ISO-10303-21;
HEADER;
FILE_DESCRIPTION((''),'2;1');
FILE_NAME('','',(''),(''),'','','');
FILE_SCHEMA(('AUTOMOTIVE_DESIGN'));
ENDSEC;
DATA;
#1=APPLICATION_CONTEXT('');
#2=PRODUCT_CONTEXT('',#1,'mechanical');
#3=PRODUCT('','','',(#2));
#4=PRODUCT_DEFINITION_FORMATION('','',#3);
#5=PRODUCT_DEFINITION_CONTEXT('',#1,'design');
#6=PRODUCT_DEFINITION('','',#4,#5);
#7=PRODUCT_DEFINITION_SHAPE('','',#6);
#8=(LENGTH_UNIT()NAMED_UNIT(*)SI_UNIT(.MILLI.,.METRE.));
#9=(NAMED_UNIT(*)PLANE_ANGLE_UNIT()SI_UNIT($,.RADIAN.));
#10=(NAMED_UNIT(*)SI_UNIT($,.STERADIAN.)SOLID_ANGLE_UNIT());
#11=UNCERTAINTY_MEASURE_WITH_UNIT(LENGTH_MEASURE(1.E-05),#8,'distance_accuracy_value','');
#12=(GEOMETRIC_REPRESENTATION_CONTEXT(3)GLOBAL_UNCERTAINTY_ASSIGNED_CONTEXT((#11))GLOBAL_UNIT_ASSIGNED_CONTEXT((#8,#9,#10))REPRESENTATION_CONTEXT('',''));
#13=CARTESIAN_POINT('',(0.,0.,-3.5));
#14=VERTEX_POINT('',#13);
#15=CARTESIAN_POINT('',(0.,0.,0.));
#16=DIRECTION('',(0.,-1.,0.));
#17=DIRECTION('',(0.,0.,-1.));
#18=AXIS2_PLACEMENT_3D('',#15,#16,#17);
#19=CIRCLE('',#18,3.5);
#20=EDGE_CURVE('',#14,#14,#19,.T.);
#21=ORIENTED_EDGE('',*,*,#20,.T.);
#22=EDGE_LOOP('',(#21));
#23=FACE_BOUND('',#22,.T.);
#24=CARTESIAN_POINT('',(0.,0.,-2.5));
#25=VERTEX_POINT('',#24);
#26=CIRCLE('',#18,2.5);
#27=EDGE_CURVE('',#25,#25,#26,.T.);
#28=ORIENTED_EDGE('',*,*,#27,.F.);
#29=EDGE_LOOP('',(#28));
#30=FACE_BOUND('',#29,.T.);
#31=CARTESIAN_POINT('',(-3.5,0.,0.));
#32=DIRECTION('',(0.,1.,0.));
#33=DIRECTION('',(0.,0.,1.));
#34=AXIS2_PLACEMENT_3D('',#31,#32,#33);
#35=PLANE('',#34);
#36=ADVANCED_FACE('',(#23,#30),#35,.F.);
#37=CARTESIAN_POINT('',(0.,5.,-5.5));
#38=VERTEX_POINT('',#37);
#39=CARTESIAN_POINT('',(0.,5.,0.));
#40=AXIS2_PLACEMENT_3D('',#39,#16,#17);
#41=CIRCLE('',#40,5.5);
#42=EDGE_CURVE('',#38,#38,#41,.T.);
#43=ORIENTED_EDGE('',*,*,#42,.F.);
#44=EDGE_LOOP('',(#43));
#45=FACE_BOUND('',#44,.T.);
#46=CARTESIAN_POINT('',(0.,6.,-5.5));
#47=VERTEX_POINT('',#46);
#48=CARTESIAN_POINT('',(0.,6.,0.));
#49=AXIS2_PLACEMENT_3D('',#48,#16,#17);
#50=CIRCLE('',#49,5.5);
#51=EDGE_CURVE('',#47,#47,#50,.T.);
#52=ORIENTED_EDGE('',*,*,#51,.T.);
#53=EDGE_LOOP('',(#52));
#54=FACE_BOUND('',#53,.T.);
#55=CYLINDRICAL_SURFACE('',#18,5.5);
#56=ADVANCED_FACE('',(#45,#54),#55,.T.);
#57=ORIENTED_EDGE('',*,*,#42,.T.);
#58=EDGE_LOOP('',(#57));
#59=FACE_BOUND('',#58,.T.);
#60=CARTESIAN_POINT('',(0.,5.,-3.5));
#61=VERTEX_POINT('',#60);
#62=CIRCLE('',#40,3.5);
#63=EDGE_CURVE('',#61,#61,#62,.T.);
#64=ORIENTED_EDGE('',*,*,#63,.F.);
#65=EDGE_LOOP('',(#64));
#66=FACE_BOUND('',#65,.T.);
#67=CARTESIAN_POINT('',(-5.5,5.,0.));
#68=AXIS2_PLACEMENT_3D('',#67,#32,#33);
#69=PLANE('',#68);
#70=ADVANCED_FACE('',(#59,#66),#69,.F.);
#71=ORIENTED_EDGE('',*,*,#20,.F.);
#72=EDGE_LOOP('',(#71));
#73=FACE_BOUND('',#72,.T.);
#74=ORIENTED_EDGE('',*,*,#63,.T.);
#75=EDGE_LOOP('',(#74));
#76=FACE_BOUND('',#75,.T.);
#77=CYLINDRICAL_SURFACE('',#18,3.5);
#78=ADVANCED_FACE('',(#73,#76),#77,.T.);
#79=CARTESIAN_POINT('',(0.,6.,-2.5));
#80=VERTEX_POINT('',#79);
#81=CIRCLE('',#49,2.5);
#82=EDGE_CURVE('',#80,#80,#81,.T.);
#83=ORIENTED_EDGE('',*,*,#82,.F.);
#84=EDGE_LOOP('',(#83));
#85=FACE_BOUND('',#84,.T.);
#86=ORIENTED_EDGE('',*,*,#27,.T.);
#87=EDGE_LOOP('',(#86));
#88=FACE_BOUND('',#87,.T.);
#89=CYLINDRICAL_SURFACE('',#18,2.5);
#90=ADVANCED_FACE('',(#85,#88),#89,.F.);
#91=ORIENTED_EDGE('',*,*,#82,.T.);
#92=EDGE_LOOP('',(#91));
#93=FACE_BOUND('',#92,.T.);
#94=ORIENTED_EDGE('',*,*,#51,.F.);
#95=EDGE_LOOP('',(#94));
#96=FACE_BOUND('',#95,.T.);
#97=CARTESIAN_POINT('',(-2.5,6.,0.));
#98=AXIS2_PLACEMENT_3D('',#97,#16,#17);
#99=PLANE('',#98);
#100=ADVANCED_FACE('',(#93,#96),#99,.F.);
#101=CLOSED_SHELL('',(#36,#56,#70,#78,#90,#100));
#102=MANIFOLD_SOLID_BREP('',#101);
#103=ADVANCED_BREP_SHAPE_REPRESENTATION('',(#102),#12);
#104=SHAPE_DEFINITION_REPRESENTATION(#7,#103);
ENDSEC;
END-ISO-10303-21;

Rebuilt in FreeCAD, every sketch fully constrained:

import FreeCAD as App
import Part
import Sketcher


def add_polygon(sketch, points):
    """Adds a closed chain of lines whose ends are joined by coincident constraints."""
    first, n = sketch.GeometryCount, len(points)
    for a, b in zip(points, points[1:] + points[:1]):
        sketch.addGeometry(Part.LineSegment(App.Vector(*a, 0), App.Vector(*b, 0)), False)
    for i in range(n):
        sketch.addConstraint(Sketcher.Constraint("Coincident", first + i, 2, first + (i + 1) % n, 1))

doc = App.newDocument("Part")
body = doc.addObject("PartDesign::Body", "Body")

sketch1 = body.newObject("Sketcher::SketchObject", "Sketch")
sketch1.AttachmentSupport = (doc.getObject("XY_Plane"), [""])
sketch1.MapMode = "FlatFace"
add_polygon(sketch1, [(-2.5, 0), (-2.5, 6), (-5.5, 6), (-5.5, 5), (-3.5, 5), (-3.5, 0)])
sketch1.addConstraint([
    Sketcher.Constraint("Vertical", 0),
    Sketcher.Constraint("Horizontal", 1),
    Sketcher.Constraint("Vertical", 2),
    Sketcher.Constraint("Horizontal", 3),
    Sketcher.Constraint("Vertical", 4),
    Sketcher.Constraint("Horizontal", 5),
    Sketcher.Constraint("PointOnObject", 4, 2, -1),
    Sketcher.Constraint("Equal", 5, 2),
    Sketcher.Constraint("DistanceX", 1, 2, 1, 1, 3.0),
    Sketcher.Constraint("DistanceX", 3, 1, 3, 2, 2.0),
    Sketcher.Constraint("DistanceY", 0, 1, 0, 2, 6.0),
    Sketcher.Constraint("DistanceX", 0, 2, -1, 1, 2.5),
])
revolution = body.newObject("PartDesign::Revolution", "Revolution")
revolution.Profile = sketch1
revolution.ReferenceAxis = (sketch1, ["V_Axis"])
revolution.Angle = 360

doc.recompute()
